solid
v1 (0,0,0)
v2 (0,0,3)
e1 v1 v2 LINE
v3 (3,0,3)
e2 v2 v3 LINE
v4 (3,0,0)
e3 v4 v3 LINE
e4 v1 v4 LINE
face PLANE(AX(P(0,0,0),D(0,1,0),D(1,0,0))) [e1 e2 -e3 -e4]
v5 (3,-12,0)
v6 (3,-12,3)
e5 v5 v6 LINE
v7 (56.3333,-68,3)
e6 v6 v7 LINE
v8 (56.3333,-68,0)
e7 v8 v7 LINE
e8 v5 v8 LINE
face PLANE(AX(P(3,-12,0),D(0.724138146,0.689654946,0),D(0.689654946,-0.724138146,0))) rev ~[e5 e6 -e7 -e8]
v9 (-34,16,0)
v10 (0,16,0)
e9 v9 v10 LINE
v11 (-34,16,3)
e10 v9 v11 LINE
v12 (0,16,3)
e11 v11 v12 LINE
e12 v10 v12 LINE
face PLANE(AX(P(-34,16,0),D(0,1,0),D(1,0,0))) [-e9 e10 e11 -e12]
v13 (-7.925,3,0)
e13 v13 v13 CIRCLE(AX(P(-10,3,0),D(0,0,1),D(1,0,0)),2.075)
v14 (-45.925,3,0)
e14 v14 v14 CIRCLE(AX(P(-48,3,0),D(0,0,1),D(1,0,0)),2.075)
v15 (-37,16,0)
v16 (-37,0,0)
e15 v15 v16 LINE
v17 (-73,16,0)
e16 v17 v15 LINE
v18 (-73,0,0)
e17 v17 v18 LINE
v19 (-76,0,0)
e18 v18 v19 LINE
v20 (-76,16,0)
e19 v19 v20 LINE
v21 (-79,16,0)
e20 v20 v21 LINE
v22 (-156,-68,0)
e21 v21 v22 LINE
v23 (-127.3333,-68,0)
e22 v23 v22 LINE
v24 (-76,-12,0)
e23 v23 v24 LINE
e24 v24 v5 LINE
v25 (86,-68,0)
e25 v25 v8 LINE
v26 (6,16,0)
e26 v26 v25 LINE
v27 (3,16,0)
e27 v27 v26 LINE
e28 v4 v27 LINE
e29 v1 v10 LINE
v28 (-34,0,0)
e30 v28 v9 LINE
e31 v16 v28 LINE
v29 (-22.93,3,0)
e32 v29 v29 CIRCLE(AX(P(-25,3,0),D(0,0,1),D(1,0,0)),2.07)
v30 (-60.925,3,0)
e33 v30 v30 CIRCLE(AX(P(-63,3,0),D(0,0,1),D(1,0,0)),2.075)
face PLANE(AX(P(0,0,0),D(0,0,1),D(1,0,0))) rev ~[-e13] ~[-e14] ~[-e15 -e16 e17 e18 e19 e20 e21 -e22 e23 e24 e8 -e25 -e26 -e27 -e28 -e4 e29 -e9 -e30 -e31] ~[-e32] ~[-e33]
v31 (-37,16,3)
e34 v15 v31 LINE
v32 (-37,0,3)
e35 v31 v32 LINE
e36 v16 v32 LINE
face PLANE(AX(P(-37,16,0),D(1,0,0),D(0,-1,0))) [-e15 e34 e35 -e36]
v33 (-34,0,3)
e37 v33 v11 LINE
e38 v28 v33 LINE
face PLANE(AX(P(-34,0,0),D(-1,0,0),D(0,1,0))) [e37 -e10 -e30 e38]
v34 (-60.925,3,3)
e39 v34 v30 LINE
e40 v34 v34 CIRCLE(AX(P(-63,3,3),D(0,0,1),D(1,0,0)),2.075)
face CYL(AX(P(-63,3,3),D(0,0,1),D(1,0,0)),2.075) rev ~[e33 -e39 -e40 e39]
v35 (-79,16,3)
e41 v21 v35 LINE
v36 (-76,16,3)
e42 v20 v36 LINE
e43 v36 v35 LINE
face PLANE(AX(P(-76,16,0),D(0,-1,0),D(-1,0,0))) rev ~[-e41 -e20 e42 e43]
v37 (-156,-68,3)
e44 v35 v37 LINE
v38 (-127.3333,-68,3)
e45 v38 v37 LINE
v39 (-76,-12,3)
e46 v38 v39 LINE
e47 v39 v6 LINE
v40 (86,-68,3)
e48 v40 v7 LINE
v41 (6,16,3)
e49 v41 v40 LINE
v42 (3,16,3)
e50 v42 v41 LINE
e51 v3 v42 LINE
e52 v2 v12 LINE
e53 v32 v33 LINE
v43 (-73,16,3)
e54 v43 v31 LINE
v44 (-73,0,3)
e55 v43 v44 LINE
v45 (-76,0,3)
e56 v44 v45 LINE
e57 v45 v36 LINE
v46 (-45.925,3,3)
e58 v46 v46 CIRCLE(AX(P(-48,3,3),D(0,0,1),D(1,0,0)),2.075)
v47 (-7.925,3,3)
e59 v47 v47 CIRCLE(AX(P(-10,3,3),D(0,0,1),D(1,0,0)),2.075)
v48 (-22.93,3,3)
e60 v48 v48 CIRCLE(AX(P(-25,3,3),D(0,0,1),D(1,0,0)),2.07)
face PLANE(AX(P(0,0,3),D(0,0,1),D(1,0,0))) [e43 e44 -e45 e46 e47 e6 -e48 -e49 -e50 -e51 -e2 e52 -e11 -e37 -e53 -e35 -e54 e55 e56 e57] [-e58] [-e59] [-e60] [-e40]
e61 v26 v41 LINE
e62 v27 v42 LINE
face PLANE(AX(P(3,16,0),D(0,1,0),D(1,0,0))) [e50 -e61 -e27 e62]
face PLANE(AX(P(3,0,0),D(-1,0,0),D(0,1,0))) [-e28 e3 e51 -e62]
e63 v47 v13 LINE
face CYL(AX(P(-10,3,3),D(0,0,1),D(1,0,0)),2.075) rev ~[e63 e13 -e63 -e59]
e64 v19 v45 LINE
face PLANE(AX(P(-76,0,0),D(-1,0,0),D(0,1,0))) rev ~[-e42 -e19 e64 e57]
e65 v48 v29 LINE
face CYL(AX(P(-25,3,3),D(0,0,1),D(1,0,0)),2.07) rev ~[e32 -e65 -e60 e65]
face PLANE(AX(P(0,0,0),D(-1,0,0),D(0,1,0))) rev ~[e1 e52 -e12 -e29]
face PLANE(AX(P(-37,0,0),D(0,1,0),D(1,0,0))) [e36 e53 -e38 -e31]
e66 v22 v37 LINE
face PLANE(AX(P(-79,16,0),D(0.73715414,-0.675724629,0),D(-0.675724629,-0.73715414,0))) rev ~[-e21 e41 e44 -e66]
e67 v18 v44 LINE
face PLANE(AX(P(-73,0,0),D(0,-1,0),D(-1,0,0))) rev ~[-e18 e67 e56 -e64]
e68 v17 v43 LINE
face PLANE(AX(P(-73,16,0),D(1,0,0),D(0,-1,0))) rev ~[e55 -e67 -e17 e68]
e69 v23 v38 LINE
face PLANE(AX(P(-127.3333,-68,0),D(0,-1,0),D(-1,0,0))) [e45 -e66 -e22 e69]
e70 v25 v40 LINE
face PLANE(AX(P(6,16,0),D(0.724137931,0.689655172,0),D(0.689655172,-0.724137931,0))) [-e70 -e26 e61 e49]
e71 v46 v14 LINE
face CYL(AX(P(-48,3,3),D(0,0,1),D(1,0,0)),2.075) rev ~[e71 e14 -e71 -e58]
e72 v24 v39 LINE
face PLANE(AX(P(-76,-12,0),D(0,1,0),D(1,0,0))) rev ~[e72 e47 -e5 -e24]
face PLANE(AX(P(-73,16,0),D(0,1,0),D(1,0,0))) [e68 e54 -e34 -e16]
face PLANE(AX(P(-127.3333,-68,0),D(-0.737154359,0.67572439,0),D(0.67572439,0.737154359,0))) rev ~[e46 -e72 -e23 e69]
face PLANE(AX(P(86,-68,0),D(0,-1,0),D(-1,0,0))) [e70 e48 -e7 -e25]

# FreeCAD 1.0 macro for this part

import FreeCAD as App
import Part
import Sketcher

V = App.Vector

doc = App.newDocument("Part")
body = doc.addObject("PartDesign::Body", "Body")

# Sketch on XY plane
sketch1 = body.newObject("Sketcher::SketchObject", "Sketch")
sketch1.AttachmentSupport = (doc.getObject("XY_Plane"), [""])
sketch1.MapMode = "FlatFace"
sketch1.addGeometry(Part.LineSegment(V(3, 0, 0), V(0, 0, 0)), False)
sketch1.addGeometry(Part.LineSegment(V(0, 0, 0), V(0, 16, 0)), False)
sketch1.addGeometry(Part.LineSegment(V(0, 16, 0), V(-34, 16, 0)), False)
sketch1.addGeometry(Part.LineSegment(V(-34, 16, 0), V(-34, 0, 0)), False)
sketch1.addGeometry(Part.LineSegment(V(-34, 0, 0), V(-37, 0, 0)), False)
sketch1.addGeometry(Part.LineSegment(V(-37, 0, 0), V(-37, 16, 0)), False)
sketch1.addGeometry(Part.LineSegment(V(-37, 16, 0), V(-73, 16, 0)), False)
sketch1.addGeometry(Part.LineSegment(V(-73, 16, 0), V(-73, 0, 0)), False)
sketch1.addGeometry(Part.LineSegment(V(-73, 0, 0), V(-76, 0, 0)), False)
sketch1.addGeometry(Part.LineSegment(V(-76, 0, 0), V(-76, 16, 0)), False)
sketch1.addGeometry(Part.LineSegment(V(-76, 16, 0), V(-79, 16, 0)), False)
sketch1.addGeometry(Part.LineSegment(V(-79, 16, 0), V(-156, -68, 0)), False)
sketch1.addGeometry(Part.LineSegment(V(-156, -68, 0), V(-127.3, -68, 0)), False)
sketch1.addGeometry(Part.LineSegment(V(-127.3, -68, 0), V(-76, -12, 0)), False)
sketch1.addGeometry(Part.LineSegment(V(-76, -12, 0), V(3, -12, 0)), False)
sketch1.addGeometry(Part.LineSegment(V(3, -12, 0), V(56.3, -68, 0)), False)
sketch1.addGeometry(Part.LineSegment(V(56.3, -68, 0), V(86, -68, 0)), False)
sketch1.addGeometry(Part.LineSegment(V(86, -68, 0), V(6, 16, 0)), False)
sketch1.addGeometry(Part.LineSegment(V(6, 16, 0), V(3, 16, 0)), False)
sketch1.addGeometry(Part.LineSegment(V(3, 16, 0), V(3, 0, 0)), False)
sketch1.addConstraint(Sketcher.Constraint("Coincident", 0, 2, 1, 1))
sketch1.addConstraint(Sketcher.Constraint("Coincident", 1, 2, 2, 1))
sketch1.addConstraint(Sketcher.Constraint("Coincident", 2, 2, 3, 1))
sketch1.addConstraint(Sketcher.Constraint("Coincident", 3, 2, 4, 1))
sketch1.addConstraint(Sketcher.Constraint("Coincident", 4, 2, 5, 1))
sketch1.addConstraint(Sketcher.Constraint("Coincident", 5, 2, 6, 1))
sketch1.addConstraint(Sketcher.Constraint("Coincident", 6, 2, 7, 1))
sketch1.addConstraint(Sketcher.Constraint("Coincident", 7, 2, 8, 1))
sketch1.addConstraint(Sketcher.Constraint("Coincident", 8, 2, 9, 1))
sketch1.addConstraint(Sketcher.Constraint("Coincident", 9, 2, 10, 1))
sketch1.addConstraint(Sketcher.Constraint("Coincident", 10, 2, 11, 1))
sketch1.addConstraint(Sketcher.Constraint("Coincident", 11, 2, 12, 1))
sketch1.addConstraint(Sketcher.Constraint("Coincident", 12, 2, 13, 1))
sketch1.addConstraint(Sketcher.Constraint("Coincident", 13, 2, 14, 1))
sketch1.addConstraint(Sketcher.Constraint("Coincident", 14, 2, 15, 1))
sketch1.addConstraint(Sketcher.Constraint("Coincident", 15, 2, 16, 1))
sketch1.addConstraint(Sketcher.Constraint("Coincident", 16, 2, 17, 1))
sketch1.addConstraint(Sketcher.Constraint("Coincident", 17, 2, 18, 1))
sketch1.addConstraint(Sketcher.Constraint("Coincident", 18, 2, 19, 1))
sketch1.addConstraint(Sketcher.Constraint("Coincident", 19, 2, 0, 1))
sketch1.addConstraint(Sketcher.Constraint("Horizontal", 0))
sketch1.addConstraint(Sketcher.Constraint("Vertical", 1))
sketch1.addConstraint(Sketcher.Constraint("Horizontal", 2))
sketch1.addConstraint(Sketcher.Constraint("Vertical", 3))
sketch1.addConstraint(Sketcher.Constraint("Horizontal", 4))
sketch1.addConstraint(Sketcher.Constraint("Vertical", 5))
sketch1.addConstraint(Sketcher.Constraint("Horizontal", 6))
sketch1.addConstraint(Sketcher.Constraint("Vertical", 7))
sketch1.addConstraint(Sketcher.Constraint("Horizontal", 8))
sketch1.addConstraint(Sketcher.Constraint("Vertical", 9))
sketch1.addConstraint(Sketcher.Constraint("Horizontal", 10))
sketch1.addConstraint(Sketcher.Constraint("Horizontal", 12))
sketch1.addConstraint(Sketcher.Constraint("Horizontal", 14))
sketch1.addConstraint(Sketcher.Constraint("Horizontal", 16))
sketch1.addConstraint(Sketcher.Constraint("Horizontal", 18))
sketch1.addConstraint(Sketcher.Constraint("Vertical", 19))
sketch1.addConstraint(Sketcher.Constraint("Coincident", 0, 2, -1, 1))
sketch1.addConstraint(Sketcher.Constraint("PointOnObject", 3, 2, -1))
sketch1.addConstraint(Sketcher.Constraint("PointOnObject", 7, 2, -1))
sketch1.addConstraint(Sketcher.Constraint("Parallel", 11, 13))
sketch1.addConstraint(Sketcher.Constraint("Parallel", 15, 17))
sketch1.addConstraint(Sketcher.Constraint("Horizontal", 2, 2, 5, 2))
sketch1.addConstraint(Sketcher.Constraint("Horizontal", 6, 2, 9, 2))
sketch1.addConstraint(Sketcher.Constraint("Horizontal", 12, 2, 15, 2))
sketch1.addConstraint(Sketcher.Constraint("Horizontal", 10, 2, 17, 2))
sketch1.addConstraint(Sketcher.Constraint("Vertical", 9, 2, 13, 2))
sketch1.addConstraint(Sketcher.Constraint("Vertical", 14, 2, 18, 2))
sketch1.addConstraint(Sketcher.Constraint("Equal", 0, 4))
sketch1.addConstraint(Sketcher.Constraint("Equal", 4, 8))
sketch1.addConstraint(Sketcher.Constraint("Equal", 8, 10))
sketch1.addConstraint(Sketcher.Constraint("Equal", 10, 18))
sketch1.addConstraint(Sketcher.Constraint("DistanceX", 0, 2, 0, 1, 3.0))
sketch1.addConstraint(Sketcher.Constraint("DistanceX", 2, 2, 2, 1, 34.0))
sketch1.addConstraint(Sketcher.Constraint("DistanceX", 6, 2, 6, 1, 36.0))
sketch1.addConstraint(Sketcher.Constraint("DistanceY", 1, 1, 1, 2, 16.0))
sketch1.addConstraint(Sketcher.Constraint("DistanceY", 13, 2, -1, 1, 12.0))
sketch1.addConstraint(Sketcher.Constraint("DistanceX", 11, 2, 8, 2, 80.0))
sketch1.addConstraint(Sketcher.Constraint("DistanceY", 15, 2, 14, 2, 56.0))
sketch1.addConstraint(Sketcher.Constraint("Distance", 17, 116.0))
pad1 = body.newObject("PartDesign::Pad", "Pad")
pad1.Profile = sketch1
pad1.Length = 3

# Sketch on XY plane
sketch2 = body.newObject("Sketcher::SketchObject", "Sketch001")
sketch2.AttachmentSupport = (doc.getObject("XY_Plane"), [""])
sketch2.MapMode = "FlatFace"
sketch2.AttachmentOffset = App.Placement(V(0, 0, 3), App.Rotation())
sketch2.addGeometry(Part.Circle(V(-25, 3, 0), V(0, 0, 1), 2.1), False)
sketch2.addGeometry(Part.Circle(V(-10, 3, 0), V(0, 0, 1), 2.1), False)
sketch2.addGeometry(Part.Circle(V(-63, 3, 0), V(0, 0, 1), 2.1), False)
sketch2.addGeometry(Part.Circle(V(-48, 3, 0), V(0, 0, 1), 2.1), False)
sketch2.addConstraint(Sketcher.Constraint("Equal", 1, 2))
sketch2.addConstraint(Sketcher.Constraint("Equal", 2, 3))
sketch2.addConstraint(Sketcher.Constraint("Horizontal", 0, 3, 1, 3))
sketch2.addConstraint(Sketcher.Constraint("Horizontal", 1, 3, 2, 3))
sketch2.addConstraint(Sketcher.Constraint("Horizontal", 2, 3, 3, 3))
sketch2.addConstraint(Sketcher.Constraint("Diameter", 0, 4.14))
sketch2.addConstraint(Sketcher.Constraint("Diameter", 1, 4.15))
sketch2.addConstraint(Sketcher.Constraint("DistanceX", 1, 3, -1, 1, 10.0))
sketch2.addConstraint(Sketcher.Constraint("DistanceX", 0, 3, 1, 3, 15.0))
sketch2.addConstraint(Sketcher.Constraint("DistanceX", 2, 3, 3, 3, 15.0))
sketch2.addConstraint(Sketcher.Constraint("DistanceY", -1, 1, 0, 3, 3.0))
sketch2.addConstraint(Sketcher.Constraint("DistanceX", 2, 3, -1, 1, 63.0))
pocket1 = body.newObject("PartDesign::Pocket", "Pocket")
pocket1.Profile = sketch2
pocket1.Length = 3

doc.recompute()
